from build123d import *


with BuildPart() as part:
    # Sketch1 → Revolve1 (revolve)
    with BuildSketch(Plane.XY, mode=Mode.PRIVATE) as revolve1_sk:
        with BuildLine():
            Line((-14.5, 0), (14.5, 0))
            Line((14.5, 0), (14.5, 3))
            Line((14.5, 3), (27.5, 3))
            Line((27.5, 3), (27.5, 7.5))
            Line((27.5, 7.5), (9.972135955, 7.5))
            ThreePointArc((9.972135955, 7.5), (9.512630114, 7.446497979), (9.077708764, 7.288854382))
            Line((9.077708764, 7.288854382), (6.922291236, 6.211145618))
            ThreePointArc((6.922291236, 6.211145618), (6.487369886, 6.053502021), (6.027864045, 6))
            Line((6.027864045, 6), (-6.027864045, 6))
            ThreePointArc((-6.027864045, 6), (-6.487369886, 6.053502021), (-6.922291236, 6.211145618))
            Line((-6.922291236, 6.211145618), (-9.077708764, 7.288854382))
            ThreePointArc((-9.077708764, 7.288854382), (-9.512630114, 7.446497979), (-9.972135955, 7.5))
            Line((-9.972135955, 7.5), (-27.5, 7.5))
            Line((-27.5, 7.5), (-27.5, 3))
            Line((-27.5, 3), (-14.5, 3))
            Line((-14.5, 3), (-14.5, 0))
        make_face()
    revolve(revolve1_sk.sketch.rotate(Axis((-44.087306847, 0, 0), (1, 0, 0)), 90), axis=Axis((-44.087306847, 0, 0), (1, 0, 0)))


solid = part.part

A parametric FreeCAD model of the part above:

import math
import FreeCAD as App
import Part
import Sketcher
from FreeCAD import Vector

doc = App.newDocument("Part")
body = doc.addObject("PartDesign::Body", "Body")

# Sketch on XY plane
sketch1 = body.newObject("Sketcher::SketchObject", "Sketch")
sketch1.AttachmentSupport = (doc.getObject("XY_Plane"), [""])
sketch1.MapMode = "FlatFace"
sketch1.addGeometry(Part.LineSegment(Vector(-14.5, 0, 0), Vector(14.5, 0, 0)), False)
sketch1.addGeometry(Part.LineSegment(Vector(14.5, 0, 0), Vector(14.5, 3, 0)), False)
sketch1.addGeometry(Part.LineSegment(Vector(14.5, 3, 0), Vector(27.5, 3, 0)), False)
sketch1.addGeometry(Part.LineSegment(Vector(27.5, 3, 0), Vector(27.5, 7.5, 0)), False)
sketch1.addGeometry(Part.LineSegment(Vector(27.5, 7.5, 0), Vector(10, 7.5, 0)), False)
sketch1.addGeometry(Part.ArcOfCircle(Part.Circle(Vector(10, 5.5, 0), Vector(0, 0, 1), 2), math.radians(90), math.radians(117)), False)
sketch1.addGeometry(Part.LineSegment(Vector(9.1, 7.3, 0), Vector(6.9, 6.2, 0)), False)
sketch1.addGeometry(Part.ArcOfCircle(Part.Circle(Vector(6, 8, 0), Vector(0, 0, 1), 2), math.radians(-90), math.radians(-63)), False)
sketch1.addGeometry(Part.LineSegment(Vector(6, 6, 0), Vector(-6, 6, 0)), False)
sketch1.addGeometry(Part.ArcOfCircle(Part.Circle(Vector(-6, 8, 0), Vector(0, 0, 1), 2), math.radians(-117), math.radians(-90)), False)
sketch1.addGeometry(Part.LineSegment(Vector(-6.9, 6.2, 0), Vector(-9.1, 7.3, 0)), False)
sketch1.addGeometry(Part.ArcOfCircle(Part.Circle(Vector(-10, 5.5, 0), Vector(0, 0, 1), 2), math.radians(63), math.radians(90)), False)
sketch1.addGeometry(Part.LineSegment(Vector(-10, 7.5, 0), Vector(-27.5, 7.5, 0)), False)
sketch1.addGeometry(Part.LineSegment(Vector(-27.5, 7.5, 0), Vector(-27.5, 3, 0)), False)
sketch1.addGeometry(Part.LineSegment(Vector(-27.5, 3, 0), Vector(-14.5, 3, 0)), False)
sketch1.addGeometry(Part.LineSegment(Vector(-14.5, 3, 0), Vector(-14.5, 0, 0)), False)
sketch1.addConstraint(Sketcher.Constraint("Coincident", 0, 2, 1, 1))
sketch1.addConstraint(Sketcher.Constraint("Coincident", 1, 2, 2, 1))
sketch1.addConstraint(Sketcher.Constraint("Coincident", 2, 2, 3, 1))
sketch1.addConstraint(Sketcher.Constraint("Coincident", 3, 2, 4, 1))
sketch1.addConstraint(Sketcher.Constraint("Tangent", 4, 2, 5, 1))
sketch1.addConstraint(Sketcher.Constraint("Tangent", 5, 2, 6, 1))
sketch1.addConstraint(Sketcher.Constraint("Tangent", 6, 2, 7, 2))
sketch1.addConstraint(Sketcher.Constraint("Tangent", 7, 1, 8, 1))
sketch1.addConstraint(Sketcher.Constraint("Tangent", 8, 2, 9, 2))
sketch1.addConstraint(Sketcher.Constraint("Tangent", 9, 1, 10, 1))
sketch1.addConstraint(Sketcher.Constraint("Tangent", 10, 2, 11, 1))
sketch1.addConstraint(Sketcher.Constraint("Tangent", 11, 2, 12, 1))
sketch1.addConstraint(Sketcher.Constraint("Coincident", 12, 2, 13, 1))
sketch1.addConstraint(Sketcher.Constraint("Coincident", 13, 2, 14, 1))
sketch1.addConstraint(Sketcher.Constraint("Coincident", 14, 2, 15, 1))
sketch1.addConstraint(Sketcher.Constraint("Coincident", 15, 2, 0, 1))
sketch1.addConstraint(Sketcher.Constraint("Horizontal", 0))
sketch1.addConstraint(Sketcher.Constraint("Vertical", 1))
sketch1.addConstraint(Sketcher.Constraint("Horizontal", 2))
sketch1.addConstraint(Sketcher.Constraint("Vertical", 3))
sketch1.addConstraint(Sketcher.Constraint("Horizontal", 4))
sketch1.addConstraint(Sketcher.Constraint("Horizontal", 8))
sketch1.addConstraint(Sketcher.Constraint("Horizontal", 12))
sketch1.addConstraint(Sketcher.Constraint("Vertical", 13))
sketch1.addConstraint(Sketcher.Constraint("Horizontal", 14))
sketch1.addConstraint(Sketcher.Constraint("Vertical", 15))
sketch1.addConstraint(Sketcher.Constraint("Equal", 5, 7))
sketch1.addConstraint(Sketcher.Constraint("Equal", 7, 9))
sketch1.addConstraint(Sketcher.Constraint("Equal", 9, 11))
sketch1.addConstraint(Sketcher.Constraint("Symmetric", 0, 2, 15, 2, -1, 1))
sketch1.addConstraint(Sketcher.Constraint("Symmetric", 5, 3, 11, 3, -2))
sketch1.addConstraint(Sketcher.Constraint("Symmetric", 2, 2, 13, 2, -2))
sketch1.addConstraint(Sketcher.Constraint("Horizontal", 6, 2, 9, 1))
sketch1.addConstraint(Sketcher.Constraint("Radius", 5, 2.0))
sketch1.addConstraint(Sketcher.Constraint("DistanceX", 0, 1, 0, 2, 29.0))
sketch1.addConstraint(Sketcher.Constraint("DistanceX", 2, 1, 2, 2, 13.0))
sketch1.addConstraint(Sketcher.Constraint("DistanceY", 1, 1, 1, 2, 3.0))
sketch1.addConstraint(Sketcher.Constraint("DistanceY", 3, 1, 3, 2, 4.5))
sketch1.addConstraint(Sketcher.Constraint("DistanceY", -1, 1, 7, 3, 8.0))
sketch1.addConstraint(Sketcher.Constraint("DistanceX", 9, 3, 5, 3, 16.0))
sketch1.addConstraint(Sketcher.Constraint("DistanceX", 8, 2, 8, 1, 12.055728))
revolution = body.newObject("PartDesign::Revolution", "Revolution")
revolution.Profile = sketch1
revolution.ReferenceAxis = (sketch1, ["H_Axis"])
revolution.Angle = 360

doc.recompute()
